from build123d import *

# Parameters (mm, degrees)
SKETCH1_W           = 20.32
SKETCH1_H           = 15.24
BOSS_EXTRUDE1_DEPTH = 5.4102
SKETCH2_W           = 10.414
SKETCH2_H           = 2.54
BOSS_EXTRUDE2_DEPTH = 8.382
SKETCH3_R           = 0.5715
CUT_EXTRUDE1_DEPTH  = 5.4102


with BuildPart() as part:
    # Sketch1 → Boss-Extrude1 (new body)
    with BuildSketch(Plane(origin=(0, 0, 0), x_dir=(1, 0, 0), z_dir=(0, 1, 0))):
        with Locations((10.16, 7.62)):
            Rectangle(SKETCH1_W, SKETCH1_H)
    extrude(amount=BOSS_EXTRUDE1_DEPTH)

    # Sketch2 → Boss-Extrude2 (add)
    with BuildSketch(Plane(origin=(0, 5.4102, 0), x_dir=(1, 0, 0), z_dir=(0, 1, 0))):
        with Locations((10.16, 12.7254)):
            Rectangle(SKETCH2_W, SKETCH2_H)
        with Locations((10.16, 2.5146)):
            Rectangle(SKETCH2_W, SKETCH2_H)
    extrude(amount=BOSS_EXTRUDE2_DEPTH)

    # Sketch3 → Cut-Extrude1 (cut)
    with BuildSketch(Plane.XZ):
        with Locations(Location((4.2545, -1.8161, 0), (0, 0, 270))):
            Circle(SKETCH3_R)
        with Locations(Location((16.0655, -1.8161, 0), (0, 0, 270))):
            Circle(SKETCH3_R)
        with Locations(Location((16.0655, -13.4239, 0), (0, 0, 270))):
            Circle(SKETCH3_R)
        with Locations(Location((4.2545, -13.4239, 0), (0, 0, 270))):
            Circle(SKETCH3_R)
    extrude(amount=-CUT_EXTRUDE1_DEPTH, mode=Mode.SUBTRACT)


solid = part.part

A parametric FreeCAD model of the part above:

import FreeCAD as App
import Part
import Sketcher
from FreeCAD import Vector
Q = App.Units.Quantity

doc = App.newDocument("Part")
params = doc.addObject("Spreadsheet::Sheet", "Params")
for row, (alias, value) in enumerate([
    ("sketch1_width", "0.8 in"),
    ("sketch1_height", "0.6 in"),
    ("pad1_length", "0.213 in"),
    ("sketch2_height", "0.1 in"),
    ("sketch2_width", "0.41 in"),
    ("pad2_length", "0.33 in"),
    ("sketch3_diameter", "0.045 in"),
    ("pocket1_length", "0.213 in"),
], start=1):
    params.set(f"A{row}", alias)
    params.set(f"B{row}", "=" + value)
    params.setAlias(f"B{row}", alias)

body = doc.addObject("PartDesign::Body", "Body")

sketch1 = body.newObject("Sketcher::SketchObject", "Sketch")
sketch1.AttachmentSupport = (doc.getObject("XZ_Plane"), [""])
sketch1.MapMode = "FlatFace"
sketch1.addGeometry(Part.LineSegment(Vector(0, -15, 0), Vector(0, 0, 0)), False)
sketch1.addGeometry(Part.LineSegment(Vector(0, 0, 0), Vector(20, 0, 0)), False)
sketch1.addGeometry(Part.LineSegment(Vector(20, 0, 0), Vector(20, -15, 0)), False)
sketch1.addGeometry(Part.LineSegment(Vector(20, -15, 0), Vector(0, -15, 0)), False)
sketch1.addConstraint(Sketcher.Constraint("Coincident", 0, 2, 1, 1))
sketch1.addConstraint(Sketcher.Constraint("Coincident", 1, 2, 2, 1))
sketch1.addConstraint(Sketcher.Constraint("Coincident", 2, 2, 3, 1))
sketch1.addConstraint(Sketcher.Constraint("Coincident", 3, 2, 0, 1))
sketch1.addConstraint(Sketcher.Constraint("Vertical", 0))
sketch1.addConstraint(Sketcher.Constraint("Horizontal", 1))
sketch1.addConstraint(Sketcher.Constraint("Vertical", 2))
sketch1.addConstraint(Sketcher.Constraint("Horizontal", 3))
sketch1.addConstraint(Sketcher.Constraint("Coincident", 0, 2, -1, 1))
sketch1.addConstraint(Sketcher.Constraint("DistanceX", 1, 1, 1, 2, Q("0.8 in")))
sketch1.addConstraint(Sketcher.Constraint("DistanceY", 0, 1, 0, 2, Q("0.6 in")))
sketch1.setExpression("Constraints[9]", "Params.sketch1_width")
sketch1.setExpression("Constraints[10]", "Params.sketch1_height")
pad1 = body.newObject("PartDesign::Pad", "Pad")
pad1.Profile = sketch1
pad1.setExpression("Length", "Params.pad1_length")
pad1.Reversed = True

sketch2 = body.newObject("Sketcher::SketchObject", "Sketch001")
sketch2.AttachmentSupport = (doc.getObject("XZ_Plane"), [""])
sketch2.MapMode = "FlatFace"
sketch2.AttachmentOffset = App.Placement(Vector(0, 0, -0.213 * 25.4), App.Rotation())
sketch2.addGeometry(Part.LineSegment(Vector(5, -14, 0), Vector(5, -11.5, 0)), False)
sketch2.addGeometry(Part.LineSegment(Vector(5, -11.5, 0), Vector(15.4, -11.5, 0)), False)
sketch2.addGeometry(Part.LineSegment(Vector(15.4, -11.5, 0), Vector(15.4, -14, 0)), False)
sketch2.addGeometry(Part.LineSegment(Vector(15.4, -14, 0), Vector(5, -14, 0)), False)
sketch2.addGeometry(Part.LineSegment(Vector(5, -3.8, 0), Vector(5, -1.2, 0)), False)
sketch2.addGeometry(Part.LineSegment(Vector(5, -1.2, 0), Vector(15.4, -1.2, 0)), False)
sketch2.addGeometry(Part.LineSegment(Vector(15.4, -1.2, 0), Vector(15.4, -3.8, 0)), False)
sketch2.addGeometry(Part.LineSegment(Vector(15.4, -3.8, 0), Vector(5, -3.8, 0)), False)
sketch2.addConstraint(Sketcher.Constraint("Coincident", 0, 2, 1, 1))
sketch2.addConstraint(Sketcher.Constraint("Coincident", 1, 2, 2, 1))
sketch2.addConstraint(Sketcher.Constraint("Coincident", 2, 2, 3, 1))
sketch2.addConstraint(Sketcher.Constraint("Coincident", 3, 2, 0, 1))
sketch2.addConstraint(Sketcher.Constraint("Coincident", 4, 2, 5, 1))
sketch2.addConstraint(Sketcher.Constraint("Coincident", 5, 2, 6, 1))
sketch2.addConstraint(Sketcher.Constraint("Coincident", 6, 2, 7, 1))
sketch2.addConstraint(Sketcher.Constraint("Coincident", 7, 2, 4, 1))
sketch2.addConstraint(Sketcher.Constraint("Vertical", 0))
sketch2.addConstraint(Sketcher.Constraint("Horizontal", 1))
sketch2.addConstraint(Sketcher.Constraint("Vertical", 2))
sketch2.addConstraint(Sketcher.Constraint("Horizontal", 3))
sketch2.addConstraint(Sketcher.Constraint("Vertical", 4))
sketch2.addConstraint(Sketcher.Constraint("Horizontal", 5))
sketch2.addConstraint(Sketcher.Constraint("Vertical", 6))
sketch2.addConstraint(Sketcher.Constraint("Horizontal", 7))
sketch2.addConstraint(Sketcher.Constraint("Vertical", 3, 2, 4, 2))
sketch2.addConstraint(Sketcher.Constraint("Vertical", 2, 2, 5, 2))
sketch2.addConstraint(Sketcher.Constraint("Equal", 2, 4))
sketch2.addConstraint(Sketcher.Constraint("DistanceY", 0, 1, 0, 2, Q("0.1 in")))
sketch2.addConstraint(Sketcher.Constraint("DistanceX", 1, 1, 1, 2, Q("0.41 in")))
sketch2.addConstraint(Sketcher.Constraint("DistanceX", -1, 1, 0, 2, Q("0.195 in")))
sketch2.addConstraint(Sketcher.Constraint("DistanceY", 0, 2, -1, 1, Q("0.451 in")))
sketch2.addConstraint(Sketcher.Constraint("DistanceY", 4, 2, -1, 1, Q("0.049 in")))
sketch2.setExpression("Constraints[19]", "Params.sketch2_height")
sketch2.setExpression("Constraints[20]", "Params.sketch2_width")
pad2 = body.newObject("PartDesign::Pad", "Pad001")
pad2.Profile = sketch2
pad2.setExpression("Length", "Params.pad2_length")
pad2.Reversed = True

sketch3 = body.newObject("Sketcher::SketchObject", "Sketch002")
sketch3.AttachmentSupport = (doc.getObject("XZ_Plane"), [""])
sketch3.MapMode = "FlatFace"
sketch3.addGeometry(Part.Circle(Vector(4.3, -1.8, 0), Vector(0, 0, 1), 0.6), False)
sketch3.addGeometry(Part.Circle(Vector(16.1, -1.8, 0), Vector(0, 0, 1), 0.6), False)
sketch3.addGeometry(Part.Circle(Vector(16.1, -13.4, 0), Vector(0, 0, 1), 0.6), False)
sketch3.addGeometry(Part.Circle(Vector(4.3, -13.4, 0), Vector(0, 0, 1), 0.6), False)
sketch3.addConstraint(Sketcher.Constraint("Equal", 0, 1))
sketch3.addConstraint(Sketcher.Constraint("Equal", 1, 2))
sketch3.addConstraint(Sketcher.Constraint("Equal", 2, 3))
sketch3.addConstraint(Sketcher.Constraint("Horizontal", 0, 3, 1, 3))
sketch3.addConstraint(Sketcher.Constraint("Horizontal", 2, 3, 3, 3))
sketch3.addConstraint(Sketcher.Constraint("Vertical", 1, 3, 2, 3))
sketch3.addConstraint(Sketcher.Constraint("Vertical", 0, 3, 3, 3))
sketch3.addConstraint(Sketcher.Constraint("Diameter", 0, Q("0.045 in")))
sketch3.addConstraint(Sketcher.Constraint("DistanceX", 0, 3, 1, 3, Q("0.465 in")))
sketch3.addConstraint(Sketcher.Constraint("DistanceY", 2, 3, 1, 3, Q("0.457 in")))
sketch3.addConstraint(Sketcher.Constraint("DistanceX", -1, 1, 0, 3, Q("0.1675 in")))
sketch3.addConstraint(Sketcher.Constraint("DistanceY", 0, 3, -1, 1, Q("0.0715 in")))
sketch3.setExpression("Constraints[7]", "Params.sketch3_diameter")
pocket1 = body.newObject("PartDesign::Pocket", "Pocket")
pocket1.Profile = sketch3
pocket1.setExpression("Length", "Params.pocket1_length")

doc.recompute()
